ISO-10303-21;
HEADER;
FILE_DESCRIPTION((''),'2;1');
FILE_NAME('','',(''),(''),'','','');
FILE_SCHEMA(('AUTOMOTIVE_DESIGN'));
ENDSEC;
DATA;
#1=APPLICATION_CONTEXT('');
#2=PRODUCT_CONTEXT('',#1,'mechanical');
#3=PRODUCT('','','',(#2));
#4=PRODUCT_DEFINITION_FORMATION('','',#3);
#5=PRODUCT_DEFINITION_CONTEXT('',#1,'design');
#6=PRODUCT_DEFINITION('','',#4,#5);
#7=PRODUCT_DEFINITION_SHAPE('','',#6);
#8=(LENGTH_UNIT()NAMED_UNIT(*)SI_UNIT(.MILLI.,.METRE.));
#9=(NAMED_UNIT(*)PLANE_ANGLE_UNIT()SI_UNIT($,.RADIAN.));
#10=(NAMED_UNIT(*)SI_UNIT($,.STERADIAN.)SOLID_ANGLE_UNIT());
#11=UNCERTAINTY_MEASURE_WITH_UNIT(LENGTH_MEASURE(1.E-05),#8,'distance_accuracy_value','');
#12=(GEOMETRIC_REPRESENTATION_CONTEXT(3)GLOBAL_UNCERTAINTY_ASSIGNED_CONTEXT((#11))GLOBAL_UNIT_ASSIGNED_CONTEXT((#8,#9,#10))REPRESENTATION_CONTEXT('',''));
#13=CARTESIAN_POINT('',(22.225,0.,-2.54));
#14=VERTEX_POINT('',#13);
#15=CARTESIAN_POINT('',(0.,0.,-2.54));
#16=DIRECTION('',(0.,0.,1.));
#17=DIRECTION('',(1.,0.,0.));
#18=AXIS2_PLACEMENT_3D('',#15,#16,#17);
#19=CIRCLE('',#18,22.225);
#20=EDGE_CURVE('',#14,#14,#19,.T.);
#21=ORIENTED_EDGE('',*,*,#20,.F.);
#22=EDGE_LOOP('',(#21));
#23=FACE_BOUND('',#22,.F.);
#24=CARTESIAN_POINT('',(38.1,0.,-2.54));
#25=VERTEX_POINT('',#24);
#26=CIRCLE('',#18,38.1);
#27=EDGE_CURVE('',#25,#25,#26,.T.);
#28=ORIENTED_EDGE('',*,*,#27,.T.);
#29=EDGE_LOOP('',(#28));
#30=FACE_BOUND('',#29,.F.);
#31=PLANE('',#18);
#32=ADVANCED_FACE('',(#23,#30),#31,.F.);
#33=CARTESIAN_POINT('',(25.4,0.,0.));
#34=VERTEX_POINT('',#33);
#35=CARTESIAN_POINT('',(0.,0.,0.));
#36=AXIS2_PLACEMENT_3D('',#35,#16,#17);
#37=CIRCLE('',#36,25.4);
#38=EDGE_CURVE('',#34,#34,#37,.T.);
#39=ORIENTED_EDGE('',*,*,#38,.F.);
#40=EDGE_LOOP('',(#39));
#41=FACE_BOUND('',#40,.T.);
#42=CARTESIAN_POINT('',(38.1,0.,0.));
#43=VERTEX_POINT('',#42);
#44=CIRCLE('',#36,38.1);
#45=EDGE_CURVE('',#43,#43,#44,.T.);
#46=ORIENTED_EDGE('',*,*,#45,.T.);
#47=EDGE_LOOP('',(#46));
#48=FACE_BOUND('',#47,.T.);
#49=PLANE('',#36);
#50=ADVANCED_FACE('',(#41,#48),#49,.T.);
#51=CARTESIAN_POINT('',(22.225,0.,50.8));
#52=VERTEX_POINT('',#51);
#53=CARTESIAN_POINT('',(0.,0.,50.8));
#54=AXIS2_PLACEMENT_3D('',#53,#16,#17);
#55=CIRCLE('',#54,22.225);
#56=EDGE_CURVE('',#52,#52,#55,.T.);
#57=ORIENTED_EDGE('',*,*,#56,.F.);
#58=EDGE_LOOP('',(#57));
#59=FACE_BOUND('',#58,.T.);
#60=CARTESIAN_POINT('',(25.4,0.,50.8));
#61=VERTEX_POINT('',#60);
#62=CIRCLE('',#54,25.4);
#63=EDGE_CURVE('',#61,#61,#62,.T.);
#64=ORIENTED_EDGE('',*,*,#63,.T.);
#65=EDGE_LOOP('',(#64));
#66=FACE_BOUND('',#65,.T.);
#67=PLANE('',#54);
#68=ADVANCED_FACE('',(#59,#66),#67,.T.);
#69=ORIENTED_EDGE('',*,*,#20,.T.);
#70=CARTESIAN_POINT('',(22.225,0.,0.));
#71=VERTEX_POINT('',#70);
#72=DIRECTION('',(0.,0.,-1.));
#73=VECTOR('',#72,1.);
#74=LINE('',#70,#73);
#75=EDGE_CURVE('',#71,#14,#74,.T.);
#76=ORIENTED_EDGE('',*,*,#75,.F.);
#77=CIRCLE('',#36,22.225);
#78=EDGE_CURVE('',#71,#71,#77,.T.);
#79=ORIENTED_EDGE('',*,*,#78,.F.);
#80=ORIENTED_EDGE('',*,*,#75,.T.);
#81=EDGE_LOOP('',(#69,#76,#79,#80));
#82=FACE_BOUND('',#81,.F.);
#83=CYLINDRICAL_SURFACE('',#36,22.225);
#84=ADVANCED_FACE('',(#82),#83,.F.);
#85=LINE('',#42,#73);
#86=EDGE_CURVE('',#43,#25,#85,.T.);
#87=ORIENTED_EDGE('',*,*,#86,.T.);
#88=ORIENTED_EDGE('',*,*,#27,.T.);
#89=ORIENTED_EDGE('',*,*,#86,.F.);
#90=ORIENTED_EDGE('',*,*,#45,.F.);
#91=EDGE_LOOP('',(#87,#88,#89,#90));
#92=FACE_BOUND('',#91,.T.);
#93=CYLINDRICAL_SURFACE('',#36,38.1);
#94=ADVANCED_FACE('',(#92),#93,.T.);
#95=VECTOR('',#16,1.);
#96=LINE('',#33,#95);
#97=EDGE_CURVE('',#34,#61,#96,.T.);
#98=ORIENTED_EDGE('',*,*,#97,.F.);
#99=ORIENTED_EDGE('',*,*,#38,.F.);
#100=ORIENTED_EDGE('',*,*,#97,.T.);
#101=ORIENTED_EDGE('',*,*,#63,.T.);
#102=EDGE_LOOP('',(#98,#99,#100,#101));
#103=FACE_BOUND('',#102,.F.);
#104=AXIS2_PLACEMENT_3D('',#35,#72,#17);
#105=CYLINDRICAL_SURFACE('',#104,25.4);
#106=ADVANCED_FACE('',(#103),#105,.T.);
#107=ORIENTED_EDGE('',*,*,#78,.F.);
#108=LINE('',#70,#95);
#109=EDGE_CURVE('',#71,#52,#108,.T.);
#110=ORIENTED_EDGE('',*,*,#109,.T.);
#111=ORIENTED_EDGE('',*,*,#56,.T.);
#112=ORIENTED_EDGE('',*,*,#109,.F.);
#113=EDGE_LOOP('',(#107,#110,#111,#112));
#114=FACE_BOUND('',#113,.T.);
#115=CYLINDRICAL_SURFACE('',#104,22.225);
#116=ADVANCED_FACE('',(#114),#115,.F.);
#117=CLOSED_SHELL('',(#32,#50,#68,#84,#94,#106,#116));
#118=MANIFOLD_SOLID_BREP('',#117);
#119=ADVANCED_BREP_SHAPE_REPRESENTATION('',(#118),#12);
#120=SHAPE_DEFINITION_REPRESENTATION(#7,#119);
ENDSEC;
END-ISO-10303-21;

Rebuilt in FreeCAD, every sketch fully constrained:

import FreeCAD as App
import Part
import Sketcher

V = App.Vector
Q = App.Units.Quantity

doc = App.newDocument("Part")
params = doc.addObject("Spreadsheet::Sheet", "Params")
for row, (alias, value) in enumerate([
    ("sketch1_diameter", "2 in"),
    ("sketch1_diameter2", "1.75 in"),
    ("pad1_length", "2 in"),
    ("sketch2_diameter", "3 in"),
    ("sketch2_diameter2", "1.75 in"),
    ("pad2_length", "0.1 in"),
], start=1):
    params.set(f"A{row}", alias)
    params.set(f"B{row}", "=" + value)
    params.setAlias(f"B{row}", alias)

body = doc.addObject("PartDesign::Body", "Body")

# Sketch on XY plane
sketch1 = body.newObject("Sketcher::SketchObject", "Sketch")
sketch1.AttachmentSupport = (doc.getObject("XY_Plane"), [""])
sketch1.MapMode = "FlatFace"
sketch1.addGeometry([
    Part.Circle(V(0, 0, 0), V(0, 0, 1), 25),
    Part.Circle(V(0, 0, 0), V(0, 0, 1), 22),
], False)
sketch1.addConstraint([
    Sketcher.Constraint("Coincident", 0, 3, -1, 1),
    Sketcher.Constraint("Coincident", 1, 3, -1, 1),
    Sketcher.Constraint("Diameter", 0, Q("2 in")),
    Sketcher.Constraint("Diameter", 1, Q("1.75 in")),
])
sketch1.setExpression("Constraints[2]", "Params.sketch1_diameter")
sketch1.setExpression("Constraints[3]", "Params.sketch1_diameter2")
pad1 = body.newObject("PartDesign::Pad", "Pad")
pad1.Profile = sketch1
pad1.setExpression("Length", "Params.pad1_length")

# Sketch on XY plane
sketch2 = body.newObject("Sketcher::SketchObject", "Sketch001")
sketch2.AttachmentSupport = (doc.getObject("XY_Plane"), [""])
sketch2.MapMode = "FlatFace"
sketch2.addGeometry([
    Part.Circle(V(0, 0, 0), V(0, 0, 1), 38),
    Part.Circle(V(0, 0, 0), V(0, 0, 1), 22),
], False)
sketch2.addConstraint([
    Sketcher.Constraint("Coincident", 0, 3, -1, 1),
    Sketcher.Constraint("Coincident", 1, 3, -1, 1),
    Sketcher.Constraint("Diameter", 0, Q("3 in")),
    Sketcher.Constraint("Diameter", 1, Q("1.75 in")),
])
sketch2.setExpression("Constraints[2]", "Params.sketch2_diameter")
sketch2.setExpression("Constraints[3]", "Params.sketch2_diameter2")
pad2 = body.newObject("PartDesign::Pad", "Pad001")
pad2.Profile = sketch2
pad2.setExpression("Length", "Params.pad2_length")
pad2.Reversed = True

doc.recompute()
